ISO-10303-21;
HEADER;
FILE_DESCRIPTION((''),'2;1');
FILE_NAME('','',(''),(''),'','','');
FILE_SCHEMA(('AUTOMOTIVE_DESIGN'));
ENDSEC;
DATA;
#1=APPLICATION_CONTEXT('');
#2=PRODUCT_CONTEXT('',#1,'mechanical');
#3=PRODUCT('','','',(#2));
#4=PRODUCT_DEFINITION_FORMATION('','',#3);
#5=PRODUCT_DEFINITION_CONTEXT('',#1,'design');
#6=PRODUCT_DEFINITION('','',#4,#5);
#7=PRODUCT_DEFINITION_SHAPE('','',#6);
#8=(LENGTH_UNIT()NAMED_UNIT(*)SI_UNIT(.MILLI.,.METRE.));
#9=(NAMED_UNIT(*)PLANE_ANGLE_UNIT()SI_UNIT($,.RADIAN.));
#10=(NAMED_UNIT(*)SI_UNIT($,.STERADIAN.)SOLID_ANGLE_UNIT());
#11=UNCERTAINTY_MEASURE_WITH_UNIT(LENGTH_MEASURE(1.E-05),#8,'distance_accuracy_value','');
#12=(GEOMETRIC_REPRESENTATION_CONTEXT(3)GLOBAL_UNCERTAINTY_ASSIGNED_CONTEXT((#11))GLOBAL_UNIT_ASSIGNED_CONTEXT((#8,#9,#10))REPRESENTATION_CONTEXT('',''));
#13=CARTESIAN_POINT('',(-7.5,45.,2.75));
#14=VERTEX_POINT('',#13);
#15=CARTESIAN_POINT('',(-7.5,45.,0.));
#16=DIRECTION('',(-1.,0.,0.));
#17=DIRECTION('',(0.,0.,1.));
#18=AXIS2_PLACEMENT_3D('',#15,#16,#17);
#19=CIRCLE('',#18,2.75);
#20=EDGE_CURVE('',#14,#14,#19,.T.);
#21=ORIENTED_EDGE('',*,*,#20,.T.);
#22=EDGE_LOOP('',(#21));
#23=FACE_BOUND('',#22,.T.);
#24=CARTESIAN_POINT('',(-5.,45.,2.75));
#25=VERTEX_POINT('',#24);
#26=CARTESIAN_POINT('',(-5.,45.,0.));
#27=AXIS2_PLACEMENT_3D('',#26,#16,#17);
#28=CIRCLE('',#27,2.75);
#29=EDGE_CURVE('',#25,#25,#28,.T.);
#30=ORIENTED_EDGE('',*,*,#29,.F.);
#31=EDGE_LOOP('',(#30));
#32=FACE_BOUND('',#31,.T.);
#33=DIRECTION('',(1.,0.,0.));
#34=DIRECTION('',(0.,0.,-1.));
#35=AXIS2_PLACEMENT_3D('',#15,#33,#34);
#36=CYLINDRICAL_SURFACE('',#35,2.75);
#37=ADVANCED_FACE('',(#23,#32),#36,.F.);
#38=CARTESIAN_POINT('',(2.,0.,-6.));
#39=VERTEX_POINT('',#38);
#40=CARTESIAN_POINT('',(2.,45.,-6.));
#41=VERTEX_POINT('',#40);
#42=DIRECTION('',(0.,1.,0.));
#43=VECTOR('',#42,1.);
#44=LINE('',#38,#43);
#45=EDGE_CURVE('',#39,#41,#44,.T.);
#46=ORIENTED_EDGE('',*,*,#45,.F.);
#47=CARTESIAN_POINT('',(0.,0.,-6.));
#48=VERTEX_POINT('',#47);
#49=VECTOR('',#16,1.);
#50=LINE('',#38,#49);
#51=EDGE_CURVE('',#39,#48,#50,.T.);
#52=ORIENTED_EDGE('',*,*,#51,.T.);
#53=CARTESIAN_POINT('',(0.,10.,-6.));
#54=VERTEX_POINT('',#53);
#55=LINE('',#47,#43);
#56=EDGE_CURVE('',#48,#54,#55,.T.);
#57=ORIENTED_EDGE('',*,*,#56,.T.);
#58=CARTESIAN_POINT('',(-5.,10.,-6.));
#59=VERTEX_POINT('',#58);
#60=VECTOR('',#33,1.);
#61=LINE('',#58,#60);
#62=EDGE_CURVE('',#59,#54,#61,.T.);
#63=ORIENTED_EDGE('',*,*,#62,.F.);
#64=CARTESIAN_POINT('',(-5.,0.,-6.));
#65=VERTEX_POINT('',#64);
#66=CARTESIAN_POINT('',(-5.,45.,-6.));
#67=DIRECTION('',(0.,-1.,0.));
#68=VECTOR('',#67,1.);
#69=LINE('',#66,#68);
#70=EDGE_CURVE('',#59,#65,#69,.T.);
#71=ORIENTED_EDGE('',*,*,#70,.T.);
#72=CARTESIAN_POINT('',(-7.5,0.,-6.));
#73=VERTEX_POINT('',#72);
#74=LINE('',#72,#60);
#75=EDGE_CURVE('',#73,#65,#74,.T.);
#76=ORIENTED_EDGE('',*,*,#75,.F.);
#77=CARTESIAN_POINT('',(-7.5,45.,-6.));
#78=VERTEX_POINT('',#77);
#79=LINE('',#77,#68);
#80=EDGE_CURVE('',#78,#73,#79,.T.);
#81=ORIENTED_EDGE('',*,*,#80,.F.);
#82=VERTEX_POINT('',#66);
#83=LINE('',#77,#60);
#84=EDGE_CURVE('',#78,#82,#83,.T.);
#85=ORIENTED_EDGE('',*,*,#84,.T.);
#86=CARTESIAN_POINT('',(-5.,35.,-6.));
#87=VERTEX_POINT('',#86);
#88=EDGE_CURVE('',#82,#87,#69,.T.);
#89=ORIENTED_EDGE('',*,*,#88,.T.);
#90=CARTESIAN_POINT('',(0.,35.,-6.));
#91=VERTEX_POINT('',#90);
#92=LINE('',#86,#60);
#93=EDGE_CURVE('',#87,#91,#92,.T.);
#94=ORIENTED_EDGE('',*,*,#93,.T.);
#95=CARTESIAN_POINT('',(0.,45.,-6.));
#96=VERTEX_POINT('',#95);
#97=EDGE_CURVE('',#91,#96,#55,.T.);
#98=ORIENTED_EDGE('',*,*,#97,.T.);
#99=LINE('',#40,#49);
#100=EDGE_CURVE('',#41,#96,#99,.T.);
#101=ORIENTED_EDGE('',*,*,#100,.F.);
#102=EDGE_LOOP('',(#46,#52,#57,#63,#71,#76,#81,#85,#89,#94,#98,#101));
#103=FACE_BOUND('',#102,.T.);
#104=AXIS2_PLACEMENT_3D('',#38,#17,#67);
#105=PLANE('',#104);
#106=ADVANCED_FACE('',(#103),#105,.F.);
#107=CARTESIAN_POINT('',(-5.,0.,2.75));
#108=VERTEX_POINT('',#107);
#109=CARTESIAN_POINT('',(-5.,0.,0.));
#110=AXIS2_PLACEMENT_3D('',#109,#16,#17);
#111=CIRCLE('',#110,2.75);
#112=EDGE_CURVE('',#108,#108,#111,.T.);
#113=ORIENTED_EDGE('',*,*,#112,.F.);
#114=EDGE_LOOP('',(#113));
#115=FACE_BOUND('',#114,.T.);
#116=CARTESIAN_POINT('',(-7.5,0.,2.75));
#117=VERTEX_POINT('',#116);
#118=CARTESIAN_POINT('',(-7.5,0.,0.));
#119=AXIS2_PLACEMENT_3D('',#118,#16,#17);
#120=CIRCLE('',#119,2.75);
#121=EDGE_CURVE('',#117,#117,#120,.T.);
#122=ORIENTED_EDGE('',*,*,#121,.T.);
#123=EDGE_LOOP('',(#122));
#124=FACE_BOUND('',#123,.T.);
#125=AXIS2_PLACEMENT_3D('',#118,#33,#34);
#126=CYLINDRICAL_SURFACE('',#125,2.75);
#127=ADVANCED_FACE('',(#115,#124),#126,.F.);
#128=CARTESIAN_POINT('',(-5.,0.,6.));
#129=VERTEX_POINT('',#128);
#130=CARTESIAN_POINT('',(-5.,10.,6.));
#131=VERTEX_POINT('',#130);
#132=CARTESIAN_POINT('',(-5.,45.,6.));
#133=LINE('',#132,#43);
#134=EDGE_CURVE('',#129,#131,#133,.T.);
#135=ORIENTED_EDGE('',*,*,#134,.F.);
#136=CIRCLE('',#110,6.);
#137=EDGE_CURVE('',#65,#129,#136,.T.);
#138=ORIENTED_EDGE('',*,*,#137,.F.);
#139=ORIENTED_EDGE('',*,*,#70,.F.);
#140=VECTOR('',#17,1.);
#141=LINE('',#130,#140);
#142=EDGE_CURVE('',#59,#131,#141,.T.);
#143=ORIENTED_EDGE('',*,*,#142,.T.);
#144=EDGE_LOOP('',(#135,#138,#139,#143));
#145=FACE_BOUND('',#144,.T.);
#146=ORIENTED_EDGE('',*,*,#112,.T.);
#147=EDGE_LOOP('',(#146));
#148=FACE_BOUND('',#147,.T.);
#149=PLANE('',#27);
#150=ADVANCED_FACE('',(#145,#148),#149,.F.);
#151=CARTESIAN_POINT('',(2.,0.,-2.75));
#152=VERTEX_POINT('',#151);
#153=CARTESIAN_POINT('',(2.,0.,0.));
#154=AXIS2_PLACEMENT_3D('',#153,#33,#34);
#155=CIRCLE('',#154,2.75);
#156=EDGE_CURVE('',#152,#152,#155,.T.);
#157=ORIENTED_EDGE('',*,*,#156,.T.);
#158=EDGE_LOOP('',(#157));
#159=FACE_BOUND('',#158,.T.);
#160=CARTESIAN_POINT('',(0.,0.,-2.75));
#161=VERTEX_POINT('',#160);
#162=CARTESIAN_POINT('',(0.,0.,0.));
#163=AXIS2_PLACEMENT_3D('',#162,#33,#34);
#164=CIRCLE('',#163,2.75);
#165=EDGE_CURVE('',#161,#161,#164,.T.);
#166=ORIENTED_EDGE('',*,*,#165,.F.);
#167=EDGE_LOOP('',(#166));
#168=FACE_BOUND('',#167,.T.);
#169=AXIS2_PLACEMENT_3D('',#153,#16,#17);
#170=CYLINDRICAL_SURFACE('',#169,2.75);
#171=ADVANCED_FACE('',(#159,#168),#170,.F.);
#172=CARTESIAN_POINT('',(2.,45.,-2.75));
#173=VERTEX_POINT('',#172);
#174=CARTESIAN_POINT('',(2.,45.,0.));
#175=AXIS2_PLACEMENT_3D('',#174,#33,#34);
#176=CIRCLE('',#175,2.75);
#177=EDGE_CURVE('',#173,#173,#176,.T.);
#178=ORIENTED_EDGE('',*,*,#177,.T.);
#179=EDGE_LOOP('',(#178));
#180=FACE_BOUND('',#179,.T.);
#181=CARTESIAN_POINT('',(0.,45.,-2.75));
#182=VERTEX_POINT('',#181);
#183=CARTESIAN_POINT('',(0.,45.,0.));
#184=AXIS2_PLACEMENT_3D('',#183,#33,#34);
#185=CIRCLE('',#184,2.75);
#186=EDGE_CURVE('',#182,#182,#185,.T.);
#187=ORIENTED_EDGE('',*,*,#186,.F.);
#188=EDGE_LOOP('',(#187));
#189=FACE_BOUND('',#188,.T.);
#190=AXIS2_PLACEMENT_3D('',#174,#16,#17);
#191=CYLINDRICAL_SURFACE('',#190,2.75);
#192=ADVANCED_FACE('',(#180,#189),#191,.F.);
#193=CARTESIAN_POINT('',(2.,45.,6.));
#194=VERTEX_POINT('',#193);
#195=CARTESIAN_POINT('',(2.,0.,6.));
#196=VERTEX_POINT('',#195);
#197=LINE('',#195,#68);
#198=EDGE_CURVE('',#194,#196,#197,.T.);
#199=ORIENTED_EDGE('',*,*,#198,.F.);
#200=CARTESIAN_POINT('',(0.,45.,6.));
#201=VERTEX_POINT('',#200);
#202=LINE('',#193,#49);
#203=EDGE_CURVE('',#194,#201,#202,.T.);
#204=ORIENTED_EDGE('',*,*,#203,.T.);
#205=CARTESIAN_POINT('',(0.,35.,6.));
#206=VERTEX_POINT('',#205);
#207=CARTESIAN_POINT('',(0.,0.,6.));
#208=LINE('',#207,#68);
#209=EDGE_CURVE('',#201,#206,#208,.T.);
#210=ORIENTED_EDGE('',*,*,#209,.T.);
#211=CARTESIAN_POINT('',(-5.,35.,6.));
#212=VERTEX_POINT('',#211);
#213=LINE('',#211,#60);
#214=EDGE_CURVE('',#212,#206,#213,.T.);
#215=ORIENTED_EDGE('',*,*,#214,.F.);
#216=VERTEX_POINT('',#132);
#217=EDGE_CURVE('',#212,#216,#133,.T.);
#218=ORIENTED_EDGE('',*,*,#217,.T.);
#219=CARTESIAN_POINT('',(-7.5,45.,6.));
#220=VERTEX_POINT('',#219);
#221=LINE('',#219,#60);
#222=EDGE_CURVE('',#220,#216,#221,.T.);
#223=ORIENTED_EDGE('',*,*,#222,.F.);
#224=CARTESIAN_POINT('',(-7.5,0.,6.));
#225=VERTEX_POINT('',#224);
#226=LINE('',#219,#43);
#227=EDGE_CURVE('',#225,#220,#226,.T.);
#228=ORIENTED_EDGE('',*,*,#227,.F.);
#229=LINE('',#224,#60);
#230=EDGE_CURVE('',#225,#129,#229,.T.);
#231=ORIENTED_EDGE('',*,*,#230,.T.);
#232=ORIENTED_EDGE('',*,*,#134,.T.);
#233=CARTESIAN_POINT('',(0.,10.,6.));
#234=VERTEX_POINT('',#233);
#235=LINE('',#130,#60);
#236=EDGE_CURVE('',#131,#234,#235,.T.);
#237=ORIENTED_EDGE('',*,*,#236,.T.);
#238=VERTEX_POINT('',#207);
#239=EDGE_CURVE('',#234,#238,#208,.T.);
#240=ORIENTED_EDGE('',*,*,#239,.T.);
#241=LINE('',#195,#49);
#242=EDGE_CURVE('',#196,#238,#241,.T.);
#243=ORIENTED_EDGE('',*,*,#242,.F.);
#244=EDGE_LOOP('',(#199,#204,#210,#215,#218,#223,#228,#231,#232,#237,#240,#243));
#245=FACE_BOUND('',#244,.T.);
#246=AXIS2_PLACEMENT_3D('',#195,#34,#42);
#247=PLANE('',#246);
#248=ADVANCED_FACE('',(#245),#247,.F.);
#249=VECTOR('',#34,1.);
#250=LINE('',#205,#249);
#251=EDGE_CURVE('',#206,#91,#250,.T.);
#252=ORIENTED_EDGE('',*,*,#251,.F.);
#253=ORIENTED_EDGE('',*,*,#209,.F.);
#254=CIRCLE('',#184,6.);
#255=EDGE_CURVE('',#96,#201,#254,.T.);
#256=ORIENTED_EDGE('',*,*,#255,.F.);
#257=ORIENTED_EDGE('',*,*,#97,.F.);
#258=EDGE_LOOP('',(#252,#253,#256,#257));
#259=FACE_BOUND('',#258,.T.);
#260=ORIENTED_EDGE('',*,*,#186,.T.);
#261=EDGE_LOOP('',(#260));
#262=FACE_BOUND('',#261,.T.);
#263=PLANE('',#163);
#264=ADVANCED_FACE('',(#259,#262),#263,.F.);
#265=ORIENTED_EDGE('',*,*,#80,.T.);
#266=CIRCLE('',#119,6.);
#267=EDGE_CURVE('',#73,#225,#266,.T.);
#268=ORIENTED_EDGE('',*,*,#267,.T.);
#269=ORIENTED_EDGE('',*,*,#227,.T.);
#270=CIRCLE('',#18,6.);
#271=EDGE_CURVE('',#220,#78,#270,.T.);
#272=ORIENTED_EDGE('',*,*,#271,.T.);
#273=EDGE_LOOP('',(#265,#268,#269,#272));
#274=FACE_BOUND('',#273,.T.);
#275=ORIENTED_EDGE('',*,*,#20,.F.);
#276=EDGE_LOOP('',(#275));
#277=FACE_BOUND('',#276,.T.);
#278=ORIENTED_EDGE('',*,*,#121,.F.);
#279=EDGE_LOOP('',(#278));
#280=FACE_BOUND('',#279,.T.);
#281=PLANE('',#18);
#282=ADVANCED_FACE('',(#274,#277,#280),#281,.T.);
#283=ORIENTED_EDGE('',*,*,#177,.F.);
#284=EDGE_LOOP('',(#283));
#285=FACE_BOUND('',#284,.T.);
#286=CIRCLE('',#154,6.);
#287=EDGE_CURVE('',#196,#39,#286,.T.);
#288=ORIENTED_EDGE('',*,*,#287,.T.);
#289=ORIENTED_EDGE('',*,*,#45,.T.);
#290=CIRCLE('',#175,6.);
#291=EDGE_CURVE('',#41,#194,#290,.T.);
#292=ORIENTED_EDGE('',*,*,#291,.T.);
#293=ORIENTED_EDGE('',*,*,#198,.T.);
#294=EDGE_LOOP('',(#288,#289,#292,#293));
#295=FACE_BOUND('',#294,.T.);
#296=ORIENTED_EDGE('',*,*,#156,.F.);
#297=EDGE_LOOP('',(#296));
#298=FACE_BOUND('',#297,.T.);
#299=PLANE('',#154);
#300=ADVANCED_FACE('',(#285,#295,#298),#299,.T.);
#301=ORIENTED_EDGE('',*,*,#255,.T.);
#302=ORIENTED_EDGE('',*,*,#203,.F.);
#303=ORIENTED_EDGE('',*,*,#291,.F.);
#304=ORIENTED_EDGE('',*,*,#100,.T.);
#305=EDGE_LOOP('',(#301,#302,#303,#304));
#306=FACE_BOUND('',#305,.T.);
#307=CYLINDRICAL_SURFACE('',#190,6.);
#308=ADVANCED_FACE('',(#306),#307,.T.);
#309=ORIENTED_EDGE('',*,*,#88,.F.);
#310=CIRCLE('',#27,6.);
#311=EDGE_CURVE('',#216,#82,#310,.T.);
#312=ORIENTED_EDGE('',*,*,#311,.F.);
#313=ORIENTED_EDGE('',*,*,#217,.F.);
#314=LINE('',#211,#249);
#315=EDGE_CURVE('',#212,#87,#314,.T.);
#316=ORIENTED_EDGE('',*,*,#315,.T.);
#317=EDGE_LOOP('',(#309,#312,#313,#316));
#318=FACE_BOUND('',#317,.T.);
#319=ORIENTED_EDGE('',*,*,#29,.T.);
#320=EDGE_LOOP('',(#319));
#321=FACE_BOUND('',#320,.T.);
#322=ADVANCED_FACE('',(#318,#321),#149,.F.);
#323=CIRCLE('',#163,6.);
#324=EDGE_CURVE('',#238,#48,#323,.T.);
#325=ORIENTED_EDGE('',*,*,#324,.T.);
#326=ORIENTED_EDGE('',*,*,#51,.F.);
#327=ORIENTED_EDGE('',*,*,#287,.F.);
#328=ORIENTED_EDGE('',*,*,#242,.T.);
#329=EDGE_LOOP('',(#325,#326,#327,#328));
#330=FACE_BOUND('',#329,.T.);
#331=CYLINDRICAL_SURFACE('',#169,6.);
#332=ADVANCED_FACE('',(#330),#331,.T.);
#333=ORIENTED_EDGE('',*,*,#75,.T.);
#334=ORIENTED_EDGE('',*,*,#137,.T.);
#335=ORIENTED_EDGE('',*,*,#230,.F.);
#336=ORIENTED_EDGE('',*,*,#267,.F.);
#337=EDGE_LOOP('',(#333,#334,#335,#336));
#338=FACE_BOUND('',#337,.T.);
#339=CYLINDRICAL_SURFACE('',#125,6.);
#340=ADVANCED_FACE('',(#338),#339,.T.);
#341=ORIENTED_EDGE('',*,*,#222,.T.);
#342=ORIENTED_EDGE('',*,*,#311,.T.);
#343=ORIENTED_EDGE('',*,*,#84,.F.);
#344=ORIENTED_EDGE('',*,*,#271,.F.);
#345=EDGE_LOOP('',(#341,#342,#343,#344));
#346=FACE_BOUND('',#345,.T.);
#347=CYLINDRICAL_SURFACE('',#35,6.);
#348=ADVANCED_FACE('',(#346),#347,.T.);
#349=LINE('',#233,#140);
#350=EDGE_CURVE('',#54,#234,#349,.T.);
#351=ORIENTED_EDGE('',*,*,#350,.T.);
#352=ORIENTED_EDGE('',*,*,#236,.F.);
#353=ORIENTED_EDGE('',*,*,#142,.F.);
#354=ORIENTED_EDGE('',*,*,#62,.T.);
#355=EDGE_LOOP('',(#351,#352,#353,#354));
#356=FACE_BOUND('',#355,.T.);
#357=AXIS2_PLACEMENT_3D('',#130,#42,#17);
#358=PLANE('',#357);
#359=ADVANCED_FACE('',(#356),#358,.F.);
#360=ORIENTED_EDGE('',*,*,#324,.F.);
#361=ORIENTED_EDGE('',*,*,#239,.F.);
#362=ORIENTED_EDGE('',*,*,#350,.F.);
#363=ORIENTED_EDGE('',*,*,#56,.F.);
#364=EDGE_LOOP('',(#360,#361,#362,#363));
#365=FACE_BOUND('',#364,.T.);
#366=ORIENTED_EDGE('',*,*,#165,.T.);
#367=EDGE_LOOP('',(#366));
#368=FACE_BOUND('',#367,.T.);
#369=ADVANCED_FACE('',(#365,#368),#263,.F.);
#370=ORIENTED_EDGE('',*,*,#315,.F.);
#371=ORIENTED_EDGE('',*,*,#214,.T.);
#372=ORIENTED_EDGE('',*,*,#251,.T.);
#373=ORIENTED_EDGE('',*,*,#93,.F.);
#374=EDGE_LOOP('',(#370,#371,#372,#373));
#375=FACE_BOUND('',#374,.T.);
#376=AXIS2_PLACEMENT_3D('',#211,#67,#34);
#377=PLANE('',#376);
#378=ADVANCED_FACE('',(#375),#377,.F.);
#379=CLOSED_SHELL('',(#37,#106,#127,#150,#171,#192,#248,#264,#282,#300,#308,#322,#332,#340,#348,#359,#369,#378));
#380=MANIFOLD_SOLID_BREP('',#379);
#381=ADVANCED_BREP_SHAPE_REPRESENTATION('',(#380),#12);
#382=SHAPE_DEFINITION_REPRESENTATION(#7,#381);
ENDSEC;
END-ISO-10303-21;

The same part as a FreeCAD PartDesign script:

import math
import FreeCAD as App
import Part
import Sketcher
from FreeCAD import Vector


def add_polygon(sketch, points):
    """Adds a closed chain of lines whose ends are joined by coincident constraints."""
    first, n = sketch.GeometryCount, len(points)
    for a, b in zip(points, points[1:] + points[:1]):
        sketch.addGeometry(Part.LineSegment(App.Vector(*a, 0), App.Vector(*b, 0)), False)
    for i in range(n):
        sketch.addConstraint(Sketcher.Constraint("Coincident", first + i, 2, first + (i + 1) % n, 1))

doc = App.newDocument("Part")
body = doc.addObject("PartDesign::Body", "Body")

sketch1 = body.newObject("Sketcher::SketchObject", "Sketch")
sketch1.AttachmentSupport = (doc.getObject("YZ_Plane"), [""])
sketch1.MapMode = "FlatFace"
sketch1.addGeometry(Part.LineSegment(Vector(45, 6, 0), Vector(0, 6, 0)), False)
sketch1.addGeometry(Part.ArcOfCircle(Part.Circle(Vector(0, 0, 0), Vector(0, 0, 1), 6), math.radians(90), math.radians(270)), False)
sketch1.addGeometry(Part.LineSegment(Vector(0, -6, 0), Vector(45, -6, 0)), False)
sketch1.addGeometry(Part.ArcOfCircle(Part.Circle(Vector(45, 0, 0), Vector(0, 0, 1), 6), math.radians(-90), math.radians(90)), False)
sketch1.addGeometry(Part.Circle(Vector(45, 0, 0), Vector(0, 0, 1), 2.8), False)
sketch1.addGeometry(Part.Circle(Vector(0, 0, 0), Vector(0, 0, 1), 2.8), False)
sketch1.addConstraint(Sketcher.Constraint("Tangent", 0, 2, 1, 1))
sketch1.addConstraint(Sketcher.Constraint("Tangent", 1, 2, 2, 1))
sketch1.addConstraint(Sketcher.Constraint("Tangent", 2, 2, 3, 1))
sketch1.addConstraint(Sketcher.Constraint("Tangent", 3, 2, 0, 1))
sketch1.addConstraint(Sketcher.Constraint("Horizontal", 0))
sketch1.addConstraint(Sketcher.Constraint("Horizontal", 2))
sketch1.addConstraint(Sketcher.Constraint("Coincident", 1, 3, -1, 1))
sketch1.addConstraint(Sketcher.Constraint("Coincident", 5, 3, -1, 1))
sketch1.addConstraint(Sketcher.Constraint("Coincident", 4, 3, 3, 3))
sketch1.addConstraint(Sketcher.Constraint("Equal", 4, 5))
sketch1.addConstraint(Sketcher.Constraint("Radius", 1, 6.0))
sketch1.addConstraint(Sketcher.Constraint("Diameter", 4, 5.5))
sketch1.addConstraint(Sketcher.Constraint("DistanceX", 0, 2, 0, 1, 45.0))
pad1 = body.newObject("PartDesign::Pad", "Pad")
pad1.Profile = sketch1
pad1.Length = 2

sketch2 = body.newObject("Sketcher::SketchObject", "Sketch001")
sketch2.AttachmentSupport = (doc.getObject("YZ_Plane"), [""])
sketch2.MapMode = "FlatFace"
add_polygon(sketch2, [(35, 6), (35, -6), (10, -6), (10, 6)])
sketch2.addConstraint(Sketcher.Constraint("Vertical", 0))
sketch2.addConstraint(Sketcher.Constraint("Horizontal", 1))
sketch2.addConstraint(Sketcher.Constraint("Vertical", 2))
sketch2.addConstraint(Sketcher.Constraint("Horizontal", 3))
sketch2.addConstraint(Sketcher.Constraint("DistanceX", 1, 2, 1, 1, 25.0))
sketch2.addConstraint(Sketcher.Constraint("DistanceY", 0, 2, 0, 1, 12.0))
sketch2.addConstraint(Sketcher.Constraint("DistanceX", -1, 1, 0, 2, 35.0))
sketch2.addConstraint(Sketcher.Constraint("DistanceY", 0, 2, -1, 1, 6.0))
pad2 = body.newObject("PartDesign::Pad", "Pad001")
pad2.Profile = sketch2
pad2.Length = 5
pad2.Reversed = True

sketch3 = body.newObject("Sketcher::SketchObject", "Sketch002")
sketch3.AttachmentSupport = (doc.getObject("YZ_Plane"), [""])
sketch3.MapMode = "FlatFace"
sketch3.AttachmentOffset = App.Placement(Vector(0, 0, -7.5), App.Rotation())
sketch3.addGeometry(Part.LineSegment(Vector(0, 6, 0), Vector(45, 6, 0)), False)
sketch3.addGeometry(Part.ArcOfCircle(Part.Circle(Vector(45, 0, 0), Vector(0, 0, 1), 6), math.radians(-90), math.radians(90)), False)
sketch3.addGeometry(Part.LineSegment(Vector(45, -6, 0), Vector(0, -6, 0)), False)
sketch3.addGeometry(Part.ArcOfCircle(Part.Circle(Vector(0, 0, 0), Vector(0, 0, 1), 6), math.radians(90), math.radians(270)), False)
sketch3.addGeometry(Part.Circle(Vector(0, 0, 0), Vector(0, 0, 1), 2.8), False)
sketch3.addGeometry(Part.Circle(Vector(45, 0, 0), Vector(0, 0, 1), 2.8), False)
sketch3.addConstraint(Sketcher.Constraint("Tangent", 0, 2, 1, 2))
sketch3.addConstraint(Sketcher.Constraint("Tangent", 1, 1, 2, 1))
sketch3.addConstraint(Sketcher.Constraint("Tangent", 2, 2, 3, 2))
sketch3.addConstraint(Sketcher.Constraint("Tangent", 3, 1, 0, 1))
sketch3.addConstraint(Sketcher.Constraint("Horizontal", 0))
sketch3.addConstraint(Sketcher.Constraint("Horizontal", 2))
sketch3.addConstraint(Sketcher.Constraint("Coincident", 3, 3, -1, 1))
sketch3.addConstraint(Sketcher.Constraint("Coincident", 4, 3, -1, 1))
sketch3.addConstraint(Sketcher.Constraint("Coincident", 5, 3, 1, 3))
sketch3.addConstraint(Sketcher.Constraint("Equal", 4, 5))
sketch3.addConstraint(Sketcher.Constraint("Radius", 1, 6.0))
sketch3.addConstraint(Sketcher.Constraint("Diameter", 4, 5.5))
sketch3.addConstraint(Sketcher.Constraint("DistanceX", 0, 1, 0, 2, 45.0))
pad3 = body.newObject("PartDesign::Pad", "Pad002")
pad3.Profile = sketch3
pad3.Length = 2.5

doc.recompute()
